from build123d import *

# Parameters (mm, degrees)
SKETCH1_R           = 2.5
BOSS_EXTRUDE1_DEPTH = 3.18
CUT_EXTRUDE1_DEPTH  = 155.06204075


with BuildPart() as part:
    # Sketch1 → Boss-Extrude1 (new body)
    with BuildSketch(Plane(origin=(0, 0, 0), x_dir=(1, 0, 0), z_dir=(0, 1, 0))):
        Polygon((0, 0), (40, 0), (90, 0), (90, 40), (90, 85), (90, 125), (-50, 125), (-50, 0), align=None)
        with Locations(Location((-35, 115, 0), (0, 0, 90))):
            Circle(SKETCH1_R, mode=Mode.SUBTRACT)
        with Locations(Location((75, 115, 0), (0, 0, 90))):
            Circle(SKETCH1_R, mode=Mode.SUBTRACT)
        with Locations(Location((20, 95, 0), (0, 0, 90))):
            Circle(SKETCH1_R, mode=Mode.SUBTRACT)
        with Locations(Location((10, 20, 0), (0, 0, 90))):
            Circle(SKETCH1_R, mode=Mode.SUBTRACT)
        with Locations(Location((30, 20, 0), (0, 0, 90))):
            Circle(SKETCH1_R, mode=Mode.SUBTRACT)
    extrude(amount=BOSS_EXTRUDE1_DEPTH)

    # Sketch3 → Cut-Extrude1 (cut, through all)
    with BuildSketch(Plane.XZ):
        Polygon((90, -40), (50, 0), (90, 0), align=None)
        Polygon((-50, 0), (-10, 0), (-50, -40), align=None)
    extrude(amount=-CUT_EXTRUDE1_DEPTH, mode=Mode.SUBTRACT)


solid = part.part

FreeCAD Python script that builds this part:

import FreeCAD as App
import Part
import Sketcher
from FreeCAD import Vector


def add_polygon(sketch, points):
    """Adds a closed chain of lines whose ends are joined by coincident constraints."""
    first, n = sketch.GeometryCount, len(points)
    for a, b in zip(points, points[1:] + points[:1]):
        sketch.addGeometry(Part.LineSegment(App.Vector(*a, 0), App.Vector(*b, 0)), False)
    for i in range(n):
        sketch.addConstraint(Sketcher.Constraint("Coincident", first + i, 2, first + (i + 1) % n, 1))

doc = App.newDocument("Part")
body = doc.addObject("PartDesign::Body", "Body")

# Sketch on XZ plane
sketch1 = doc.addObject("Sketcher::SketchObject", "Sketch")
body.addObject(sketch1)
sketch1.AttachmentSupport = (doc.XZ_Plane, [""])
sketch1.MapMode = "FlatFace"
add_polygon(sketch1, [(90, 0), (90, -125), (-50, -125), (-50, 0)])  # lines 0-3
sketch1.addGeometry(Part.Circle(Vector(10, -20, 0), Vector(0, 0, 1), 2.5), False)  # 4
sketch1.addGeometry(Part.Circle(Vector(30, -20, 0), Vector(0, 0, 1), 2.5), False)  # 5
sketch1.addGeometry(Part.Circle(Vector(-35, -115, 0), Vector(0, 0, 1), 2.5), False)  # 6
sketch1.addGeometry(Part.Circle(Vector(20, -95, 0), Vector(0, 0, 1), 2.5), False)  # 7
sketch1.addGeometry(Part.Circle(Vector(75, -115, 0), Vector(0, 0, 1), 2.5), False)  # 8
sketch1.addConstraint([
    Sketcher.Constraint("Vertical", 0),
    Sketcher.Constraint("Horizontal", 1),
    Sketcher.Constraint("Vertical", 2),
    Sketcher.Constraint("Horizontal", 3),
    Sketcher.Constraint("Equal", 4, 5),
    Sketcher.Constraint("Equal", 5, 6),
    Sketcher.Constraint("Equal", 6, 7),
    Sketcher.Constraint("Equal", 7, 8),
    Sketcher.Constraint("PointOnObject", 2, 2, -1),
    Sketcher.Constraint("Horizontal", 4, 3, 5, 3),
    Sketcher.Constraint("Horizontal", 6, 3, 8, 3),
    Sketcher.Constraint("Diameter", 4, 5.0),
    Sketcher.Constraint("DistanceX", 1, 2, 1, 1, 140.0),
    Sketcher.Constraint("DistanceY", 0, 2, 0, 1, 125.0),
    Sketcher.Constraint("DistanceX", -1, 1, 4, 3, 10.0),
    Sketcher.Constraint("DistanceY", 4, 3, -1, 1, 20.0),
    Sketcher.Constraint("DistanceX", -1, 1, 5, 3, 30.0),
    Sketcher.Constraint("DistanceX", 6, 3, -1, 1, 35.0),
    Sketcher.Constraint("DistanceY", 6, 3, -1, 1, 115.0),
    Sketcher.Constraint("DistanceX", -1, 1, 7, 3, 20.0),
    Sketcher.Constraint("DistanceY", 7, 3, -1, 1, 95.0),
    Sketcher.Constraint("DistanceX", -1, 1, 8, 3, 75.0),
    Sketcher.Constraint("DistanceX", -1, 1, 0, 2, 90.0),
])
pad1 = doc.addObject("PartDesign::Pad", "Pad")
body.addObject(pad1)
pad1.Profile = sketch1
pad1.Length = 3.18
pad1.Reversed = True

# Sketch on XZ plane
sketch2 = doc.addObject("Sketcher::SketchObject", "Sketch001")
body.addObject(sketch2)
sketch2.AttachmentSupport = (doc.XZ_Plane, [""])
sketch2.MapMode = "FlatFace"
add_polygon(sketch2, [(50, 0), (90, -40), (90, 0)])  # lines 0-2
add_polygon(sketch2, [(-10, 0), (-50, 0), (-50, -40)])  # lines 3-5
sketch2.addConstraint([
    Sketcher.Constraint("Vertical", 1),
    Sketcher.Constraint("Horizontal", 2),
    Sketcher.Constraint("Horizontal", 3),
    Sketcher.Constraint("Vertical", 4),
    Sketcher.Constraint("Symmetric", 2, 2, 3, 2, -1, 1),
    Sketcher.Constraint("PointOnObject", 1, 2, -1),
    Sketcher.Constraint("Perpendicular", 0, 5),
    Sketcher.Constraint("Horizontal", 0, 2, 4, 2),
    Sketcher.Constraint("Equal", 2, 3),
    Sketcher.Constraint("DistanceX", 2, 2, 2, 1, 40.0),
    Sketcher.Constraint("DistanceX", -1, 1, 0, 2, 90.0),
])
pocket1 = doc.addObject("PartDesign::Pocket", "Pocket")
body.addObject(pocket1)
pocket1.Profile = sketch2
pocket1.Type = "ThroughAll"

doc.recompute()
